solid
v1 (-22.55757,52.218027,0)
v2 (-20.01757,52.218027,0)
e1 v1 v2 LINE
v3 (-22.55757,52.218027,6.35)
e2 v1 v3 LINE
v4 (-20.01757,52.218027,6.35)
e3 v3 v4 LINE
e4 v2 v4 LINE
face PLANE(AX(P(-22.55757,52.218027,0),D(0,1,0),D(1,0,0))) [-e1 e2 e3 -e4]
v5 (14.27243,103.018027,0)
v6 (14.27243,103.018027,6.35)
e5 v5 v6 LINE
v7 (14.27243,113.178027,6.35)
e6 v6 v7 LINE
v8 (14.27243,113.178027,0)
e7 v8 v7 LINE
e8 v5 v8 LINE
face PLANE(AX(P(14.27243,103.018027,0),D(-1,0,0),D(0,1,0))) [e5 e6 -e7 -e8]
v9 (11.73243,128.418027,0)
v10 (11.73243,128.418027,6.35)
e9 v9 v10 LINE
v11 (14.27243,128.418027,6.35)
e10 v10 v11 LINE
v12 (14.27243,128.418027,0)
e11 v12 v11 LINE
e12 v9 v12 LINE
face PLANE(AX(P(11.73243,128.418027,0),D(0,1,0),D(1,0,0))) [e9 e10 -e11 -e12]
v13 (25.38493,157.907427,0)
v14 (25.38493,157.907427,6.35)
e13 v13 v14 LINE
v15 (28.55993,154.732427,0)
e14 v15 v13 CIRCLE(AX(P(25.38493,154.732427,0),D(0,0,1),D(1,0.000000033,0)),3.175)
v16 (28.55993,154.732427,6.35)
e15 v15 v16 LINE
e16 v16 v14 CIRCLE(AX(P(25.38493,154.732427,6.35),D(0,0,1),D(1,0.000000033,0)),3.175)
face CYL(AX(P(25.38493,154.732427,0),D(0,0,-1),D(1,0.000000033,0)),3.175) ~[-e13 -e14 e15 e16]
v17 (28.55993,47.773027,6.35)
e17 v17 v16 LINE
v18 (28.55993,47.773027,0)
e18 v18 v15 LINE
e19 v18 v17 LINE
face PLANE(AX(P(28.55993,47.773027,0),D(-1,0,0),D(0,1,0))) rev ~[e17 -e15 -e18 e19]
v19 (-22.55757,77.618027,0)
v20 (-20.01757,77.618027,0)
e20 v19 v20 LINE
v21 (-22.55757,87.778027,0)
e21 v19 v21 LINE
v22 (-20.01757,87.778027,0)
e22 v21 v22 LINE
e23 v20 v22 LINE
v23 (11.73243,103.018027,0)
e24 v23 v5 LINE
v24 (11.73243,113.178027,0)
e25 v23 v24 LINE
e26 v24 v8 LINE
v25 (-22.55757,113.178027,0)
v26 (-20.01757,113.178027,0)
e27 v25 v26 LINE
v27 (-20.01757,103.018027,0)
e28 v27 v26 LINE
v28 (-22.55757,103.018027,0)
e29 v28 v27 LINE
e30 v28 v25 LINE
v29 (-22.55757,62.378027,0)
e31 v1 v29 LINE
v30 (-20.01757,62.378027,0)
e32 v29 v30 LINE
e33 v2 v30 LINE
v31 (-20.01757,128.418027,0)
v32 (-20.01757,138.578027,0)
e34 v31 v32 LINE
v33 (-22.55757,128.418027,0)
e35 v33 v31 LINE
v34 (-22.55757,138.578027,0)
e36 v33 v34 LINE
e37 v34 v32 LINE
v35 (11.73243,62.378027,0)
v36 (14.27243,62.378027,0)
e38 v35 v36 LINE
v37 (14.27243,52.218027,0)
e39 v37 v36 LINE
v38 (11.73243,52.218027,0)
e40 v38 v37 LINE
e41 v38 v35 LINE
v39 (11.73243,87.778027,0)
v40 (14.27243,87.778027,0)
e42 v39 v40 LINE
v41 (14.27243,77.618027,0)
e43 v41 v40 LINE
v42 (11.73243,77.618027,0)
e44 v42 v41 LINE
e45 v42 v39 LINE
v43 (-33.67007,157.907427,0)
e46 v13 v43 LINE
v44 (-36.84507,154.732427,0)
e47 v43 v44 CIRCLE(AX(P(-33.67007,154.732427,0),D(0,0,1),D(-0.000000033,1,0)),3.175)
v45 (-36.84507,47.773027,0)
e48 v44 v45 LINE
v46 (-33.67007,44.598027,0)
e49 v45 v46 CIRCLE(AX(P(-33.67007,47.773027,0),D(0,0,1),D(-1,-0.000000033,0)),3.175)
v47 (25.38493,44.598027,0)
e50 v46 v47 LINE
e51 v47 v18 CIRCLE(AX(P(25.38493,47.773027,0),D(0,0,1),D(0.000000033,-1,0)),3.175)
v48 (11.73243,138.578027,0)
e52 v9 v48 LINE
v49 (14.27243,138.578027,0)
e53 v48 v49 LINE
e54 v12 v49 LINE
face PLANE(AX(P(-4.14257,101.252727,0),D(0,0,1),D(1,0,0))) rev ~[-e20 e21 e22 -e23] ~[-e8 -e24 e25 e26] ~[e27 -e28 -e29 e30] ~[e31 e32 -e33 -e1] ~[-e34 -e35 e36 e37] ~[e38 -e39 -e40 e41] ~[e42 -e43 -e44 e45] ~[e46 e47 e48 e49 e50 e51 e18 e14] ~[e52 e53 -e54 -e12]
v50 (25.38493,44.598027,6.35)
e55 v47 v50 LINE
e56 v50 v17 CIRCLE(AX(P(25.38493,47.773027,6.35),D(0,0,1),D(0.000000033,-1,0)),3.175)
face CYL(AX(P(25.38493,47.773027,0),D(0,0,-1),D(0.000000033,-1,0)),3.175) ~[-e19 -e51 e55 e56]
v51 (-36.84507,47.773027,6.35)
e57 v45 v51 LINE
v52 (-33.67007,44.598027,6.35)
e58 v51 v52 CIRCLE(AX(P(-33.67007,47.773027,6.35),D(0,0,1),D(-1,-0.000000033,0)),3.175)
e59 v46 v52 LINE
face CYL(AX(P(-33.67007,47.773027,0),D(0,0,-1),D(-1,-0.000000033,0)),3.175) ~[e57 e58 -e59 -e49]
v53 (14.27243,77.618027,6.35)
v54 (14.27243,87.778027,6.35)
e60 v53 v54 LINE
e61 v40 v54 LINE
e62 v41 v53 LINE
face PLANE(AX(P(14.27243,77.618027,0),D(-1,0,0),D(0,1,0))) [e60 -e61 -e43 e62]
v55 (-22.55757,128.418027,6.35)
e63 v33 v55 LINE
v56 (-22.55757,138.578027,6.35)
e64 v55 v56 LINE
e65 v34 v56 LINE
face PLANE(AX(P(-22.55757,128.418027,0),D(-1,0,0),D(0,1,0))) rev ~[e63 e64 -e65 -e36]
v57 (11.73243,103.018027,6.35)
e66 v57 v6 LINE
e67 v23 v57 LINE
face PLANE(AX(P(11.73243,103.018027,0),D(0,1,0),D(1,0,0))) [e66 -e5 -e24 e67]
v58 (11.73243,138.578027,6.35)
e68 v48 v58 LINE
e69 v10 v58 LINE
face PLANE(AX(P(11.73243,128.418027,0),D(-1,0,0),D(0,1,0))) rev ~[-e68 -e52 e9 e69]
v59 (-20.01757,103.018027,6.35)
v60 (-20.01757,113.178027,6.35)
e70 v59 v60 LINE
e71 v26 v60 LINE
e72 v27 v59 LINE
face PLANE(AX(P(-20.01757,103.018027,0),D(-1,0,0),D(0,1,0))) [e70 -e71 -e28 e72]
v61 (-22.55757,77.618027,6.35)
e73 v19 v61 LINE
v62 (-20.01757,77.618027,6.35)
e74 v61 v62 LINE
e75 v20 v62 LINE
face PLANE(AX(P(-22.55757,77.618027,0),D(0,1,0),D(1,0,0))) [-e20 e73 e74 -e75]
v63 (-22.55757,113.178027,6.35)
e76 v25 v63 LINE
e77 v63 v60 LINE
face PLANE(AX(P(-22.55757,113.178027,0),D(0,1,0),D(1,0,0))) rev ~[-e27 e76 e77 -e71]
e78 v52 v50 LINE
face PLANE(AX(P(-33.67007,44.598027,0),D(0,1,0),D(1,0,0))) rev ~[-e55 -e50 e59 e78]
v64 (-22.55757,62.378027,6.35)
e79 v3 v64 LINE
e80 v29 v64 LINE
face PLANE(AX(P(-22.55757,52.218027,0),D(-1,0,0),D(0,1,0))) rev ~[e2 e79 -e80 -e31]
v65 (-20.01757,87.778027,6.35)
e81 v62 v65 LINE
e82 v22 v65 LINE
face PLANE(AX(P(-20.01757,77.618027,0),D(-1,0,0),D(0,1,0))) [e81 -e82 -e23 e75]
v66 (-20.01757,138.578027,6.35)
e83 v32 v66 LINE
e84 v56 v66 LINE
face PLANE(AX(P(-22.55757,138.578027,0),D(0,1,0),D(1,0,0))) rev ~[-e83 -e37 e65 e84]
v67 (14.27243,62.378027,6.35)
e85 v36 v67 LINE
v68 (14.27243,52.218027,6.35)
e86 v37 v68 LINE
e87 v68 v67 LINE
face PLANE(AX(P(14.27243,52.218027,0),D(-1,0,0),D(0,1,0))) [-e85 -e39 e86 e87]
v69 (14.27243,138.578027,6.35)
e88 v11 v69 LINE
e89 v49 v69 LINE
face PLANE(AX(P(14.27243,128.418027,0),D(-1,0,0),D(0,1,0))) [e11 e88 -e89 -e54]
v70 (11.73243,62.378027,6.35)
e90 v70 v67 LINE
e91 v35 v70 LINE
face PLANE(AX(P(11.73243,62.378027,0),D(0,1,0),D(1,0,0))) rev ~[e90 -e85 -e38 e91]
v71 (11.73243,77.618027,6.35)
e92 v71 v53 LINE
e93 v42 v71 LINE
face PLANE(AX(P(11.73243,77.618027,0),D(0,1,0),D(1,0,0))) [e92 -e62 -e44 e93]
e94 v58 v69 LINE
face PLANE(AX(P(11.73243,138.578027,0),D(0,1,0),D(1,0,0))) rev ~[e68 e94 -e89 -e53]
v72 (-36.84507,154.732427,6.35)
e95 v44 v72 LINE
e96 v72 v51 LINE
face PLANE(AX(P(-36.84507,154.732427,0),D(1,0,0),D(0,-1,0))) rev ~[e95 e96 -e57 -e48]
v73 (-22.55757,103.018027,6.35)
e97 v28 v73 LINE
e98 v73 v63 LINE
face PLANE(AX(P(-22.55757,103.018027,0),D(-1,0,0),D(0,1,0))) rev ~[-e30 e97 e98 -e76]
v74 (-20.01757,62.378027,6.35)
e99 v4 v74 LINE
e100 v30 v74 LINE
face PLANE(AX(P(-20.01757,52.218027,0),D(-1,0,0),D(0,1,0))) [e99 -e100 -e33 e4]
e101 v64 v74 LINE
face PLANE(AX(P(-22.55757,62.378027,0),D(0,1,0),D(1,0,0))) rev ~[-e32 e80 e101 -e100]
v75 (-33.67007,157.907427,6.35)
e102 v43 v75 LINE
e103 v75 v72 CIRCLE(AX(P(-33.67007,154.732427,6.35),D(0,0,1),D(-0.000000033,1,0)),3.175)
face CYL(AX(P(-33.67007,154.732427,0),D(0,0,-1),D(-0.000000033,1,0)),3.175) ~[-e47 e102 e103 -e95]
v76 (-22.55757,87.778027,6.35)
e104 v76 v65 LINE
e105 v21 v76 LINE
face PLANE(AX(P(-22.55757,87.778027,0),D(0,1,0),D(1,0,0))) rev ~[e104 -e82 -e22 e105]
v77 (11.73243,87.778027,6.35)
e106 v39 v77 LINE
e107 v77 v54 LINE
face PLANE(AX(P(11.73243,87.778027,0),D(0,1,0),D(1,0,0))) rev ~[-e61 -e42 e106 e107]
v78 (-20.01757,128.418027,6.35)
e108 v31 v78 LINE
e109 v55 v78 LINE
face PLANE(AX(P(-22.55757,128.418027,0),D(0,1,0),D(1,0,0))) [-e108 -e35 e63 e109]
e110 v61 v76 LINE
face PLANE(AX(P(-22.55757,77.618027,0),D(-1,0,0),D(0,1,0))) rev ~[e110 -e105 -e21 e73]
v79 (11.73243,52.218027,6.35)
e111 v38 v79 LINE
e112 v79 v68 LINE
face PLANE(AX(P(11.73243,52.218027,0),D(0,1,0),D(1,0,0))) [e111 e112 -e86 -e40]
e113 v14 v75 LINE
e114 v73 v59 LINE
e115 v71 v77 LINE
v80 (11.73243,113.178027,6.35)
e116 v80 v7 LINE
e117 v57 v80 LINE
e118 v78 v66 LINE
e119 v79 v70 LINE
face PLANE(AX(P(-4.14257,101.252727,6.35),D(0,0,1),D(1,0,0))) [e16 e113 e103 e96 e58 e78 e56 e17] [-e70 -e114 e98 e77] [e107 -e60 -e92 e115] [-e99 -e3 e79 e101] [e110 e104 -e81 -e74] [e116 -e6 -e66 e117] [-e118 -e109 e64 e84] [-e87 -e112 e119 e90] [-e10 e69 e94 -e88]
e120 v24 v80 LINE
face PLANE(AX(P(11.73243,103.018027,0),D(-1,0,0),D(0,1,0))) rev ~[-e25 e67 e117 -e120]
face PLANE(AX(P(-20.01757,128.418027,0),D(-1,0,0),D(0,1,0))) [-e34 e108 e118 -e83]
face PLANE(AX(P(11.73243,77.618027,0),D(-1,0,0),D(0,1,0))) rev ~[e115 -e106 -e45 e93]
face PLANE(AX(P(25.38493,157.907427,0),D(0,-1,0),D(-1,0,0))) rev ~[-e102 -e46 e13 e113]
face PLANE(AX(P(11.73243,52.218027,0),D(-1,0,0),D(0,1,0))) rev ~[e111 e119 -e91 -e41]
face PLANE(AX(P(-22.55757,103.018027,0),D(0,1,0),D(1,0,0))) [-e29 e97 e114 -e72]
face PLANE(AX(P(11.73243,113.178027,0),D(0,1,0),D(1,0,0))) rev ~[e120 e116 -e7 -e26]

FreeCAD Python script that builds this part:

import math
import FreeCAD as App
import Part
import Sketcher
Q = App.Units.Quantity

doc = App.newDocument("Part")
body = doc.addObject("PartDesign::Body", "Body")

# Sketch on XY plane
sketch1 = body.newObject("Sketcher::SketchObject", "Sketch")
sketch1.AttachmentSupport = (doc.getObject("XY_Plane"), [""])
sketch1.MapMode = "FlatFace"
sketch1.addGeometry([
    Part.ArcOfCircle(Part.Circle(App.Vector(-33.7, 47.8, 0), App.Vector(0, 0, 1), 3.2), math.radians(-180), math.radians(-90)),  # 0
    Part.LineSegment(App.Vector(-33.7, 44.6, 0), App.Vector(25.4, 44.6, 0)),  # 1
    Part.ArcOfCircle(Part.Circle(App.Vector(25.4, 47.8, 0), App.Vector(0, 0, 1), 3.2), math.radians(-90), math.radians(0)),  # 2
    Part.LineSegment(App.Vector(28.6, 47.8, 0), App.Vector(28.6, 154.7, 0)),  # 3
    Part.ArcOfCircle(Part.Circle(App.Vector(25.4, 154.7, 0), App.Vector(0, 0, 1), 3.2), math.radians(0), math.radians(90)),  # 4
    Part.LineSegment(App.Vector(25.4, 157.9, 0), App.Vector(-33.7, 157.9, 0)),  # 5
    Part.ArcOfCircle(Part.Circle(App.Vector(-33.7, 154.7, 0), App.Vector(0, 0, 1), 3.2), math.radians(90), math.radians(180)),  # 6
    Part.LineSegment(App.Vector(-36.8, 154.7, 0), App.Vector(-36.8, 47.8, 0)),  # 7
    Part.LineSegment(App.Vector(-20, 52.2, 0), App.Vector(-22.6, 52.2, 0)),  # 8
    Part.LineSegment(App.Vector(-22.6, 52.2, 0), App.Vector(-22.6, 62.4, 0)),  # 9
    Part.LineSegment(App.Vector(-22.6, 62.4, 0), App.Vector(-20, 62.4, 0)),  # 10
    Part.LineSegment(App.Vector(-20, 62.4, 0), App.Vector(-20, 52.2, 0)),  # 11
    Part.LineSegment(App.Vector(-20, 77.6, 0), App.Vector(-22.6, 77.6, 0)),  # 12
    Part.LineSegment(App.Vector(-22.6, 77.6, 0), App.Vector(-22.6, 87.8, 0)),  # 13
    Part.LineSegment(App.Vector(-22.6, 87.8, 0), App.Vector(-20, 87.8, 0)),  # 14
    Part.LineSegment(App.Vector(-20, 87.8, 0), App.Vector(-20, 77.6, 0)),  # 15
    Part.LineSegment(App.Vector(14.3, 52.2, 0), App.Vector(11.7, 52.2, 0)),  # 16
    Part.LineSegment(App.Vector(11.7, 52.2, 0), App.Vector(11.7, 62.4, 0)),  # 17
    Part.LineSegment(App.Vector(11.7, 62.4, 0), App.Vector(14.3, 62.4, 0)),  # 18
    Part.LineSegment(App.Vector(14.3, 62.4, 0), App.Vector(14.3, 52.2, 0)),  # 19
    Part.LineSegment(App.Vector(14.3, 77.6, 0), App.Vector(11.7, 77.6, 0)),  # 20
    Part.LineSegment(App.Vector(11.7, 77.6, 0), App.Vector(11.7, 87.8, 0)),  # 21
    Part.LineSegment(App.Vector(11.7, 87.8, 0), App.Vector(14.3, 87.8, 0)),  # 22
    Part.LineSegment(App.Vector(14.3, 87.8, 0), App.Vector(14.3, 77.6, 0)),  # 23
    Part.LineSegment(App.Vector(-20, 103, 0), App.Vector(-22.6, 103, 0)),  # 24
    Part.LineSegment(App.Vector(-22.6, 103, 0), App.Vector(-22.6, 113.2, 0)),  # 25
    Part.LineSegment(App.Vector(-22.6, 113.2, 0), App.Vector(-20, 113.2, 0)),  # 26
    Part.LineSegment(App.Vector(-20, 113.2, 0), App.Vector(-20, 103, 0)),  # 27
    Part.LineSegment(App.Vector(-20, 128.4, 0), App.Vector(-22.6, 128.4, 0)),  # 28
    Part.LineSegment(App.Vector(-22.6, 128.4, 0), App.Vector(-22.6, 138.6, 0)),  # 29
    Part.LineSegment(App.Vector(-22.6, 138.6, 0), App.Vector(-20, 138.6, 0)),  # 30
    Part.LineSegment(App.Vector(-20, 138.6, 0), App.Vector(-20, 128.4, 0)),  # 31
    Part.LineSegment(App.Vector(14.3, 103, 0), App.Vector(11.7, 103, 0)),  # 32
    Part.LineSegment(App.Vector(11.7, 103, 0), App.Vector(11.7, 113.2, 0)),  # 33
    Part.LineSegment(App.Vector(11.7, 113.2, 0), App.Vector(14.3, 113.2, 0)),  # 34
    Part.LineSegment(App.Vector(14.3, 113.2, 0), App.Vector(14.3, 103, 0)),  # 35
    Part.LineSegment(App.Vector(14.3, 128.4, 0), App.Vector(11.7, 128.4, 0)),  # 36
    Part.LineSegment(App.Vector(11.7, 128.4, 0), App.Vector(11.7, 138.6, 0)),  # 37
    Part.LineSegment(App.Vector(11.7, 138.6, 0), App.Vector(14.3, 138.6, 0)),  # 38
    Part.LineSegment(App.Vector(14.3, 138.6, 0), App.Vector(14.3, 128.4, 0)),  # 39
], False)
sketch1.addConstraint([
    Sketcher.Constraint("Tangent", 0, 2, 1, 1),
    Sketcher.Constraint("Tangent", 1, 2, 2, 1),
    Sketcher.Constraint("Tangent", 2, 2, 3, 1),
    Sketcher.Constraint("Tangent", 3, 2, 4, 1),
    Sketcher.Constraint("Tangent", 4, 2, 5, 1),
    Sketcher.Constraint("Tangent", 5, 2, 6, 1),
    Sketcher.Constraint("Tangent", 6, 2, 7, 1),
    Sketcher.Constraint("Tangent", 7, 2, 0, 1),
    Sketcher.Constraint("Coincident", 8, 2, 9, 1),
    Sketcher.Constraint("Coincident", 9, 2, 10, 1),
    Sketcher.Constraint("Coincident", 10, 2, 11, 1),
    Sketcher.Constraint("Coincident", 11, 2, 8, 1),
    Sketcher.Constraint("Coincident", 12, 2, 13, 1),
    Sketcher.Constraint("Coincident", 13, 2, 14, 1),
    Sketcher.Constraint("Coincident", 14, 2, 15, 1),
    Sketcher.Constraint("Coincident", 15, 2, 12, 1),
    Sketcher.Constraint("Coincident", 16, 2, 17, 1),
    Sketcher.Constraint("Coincident", 17, 2, 18, 1),
    Sketcher.Constraint("Coincident", 18, 2, 19, 1),
    Sketcher.Constraint("Coincident", 19, 2, 16, 1),
    Sketcher.Constraint("Coincident", 20, 2, 21, 1),
    Sketcher.Constraint("Coincident", 21, 2, 22, 1),
    Sketcher.Constraint("Coincident", 22, 2, 23, 1),
    Sketcher.Constraint("Coincident", 23, 2, 20, 1),
    Sketcher.Constraint("Coincident", 24, 2, 25, 1),
    Sketcher.Constraint("Coincident", 25, 2, 26, 1),
    Sketcher.Constraint("Coincident", 26, 2, 27, 1),
    Sketcher.Constraint("Coincident", 27, 2, 24, 1),
    Sketcher.Constraint("Coincident", 28, 2, 29, 1),
    Sketcher.Constraint("Coincident", 29, 2, 30, 1),
    Sketcher.Constraint("Coincident", 30, 2, 31, 1),
    Sketcher.Constraint("Coincident", 31, 2, 28, 1),
    Sketcher.Constraint("Coincident", 32, 2, 33, 1),
    Sketcher.Constraint("Coincident", 33, 2, 34, 1),
    Sketcher.Constraint("Coincident", 34, 2, 35, 1),
    Sketcher.Constraint("Coincident", 35, 2, 32, 1),
    Sketcher.Constraint("Coincident", 36, 2, 37, 1),
    Sketcher.Constraint("Coincident", 37, 2, 38, 1),
    Sketcher.Constraint("Coincident", 38, 2, 39, 1),
    Sketcher.Constraint("Coincident", 39, 2, 36, 1),
    Sketcher.Constraint("Horizontal", 1),
    Sketcher.Constraint("Vertical", 3),
    Sketcher.Constraint("Horizontal", 5),
    Sketcher.Constraint("Vertical", 7),
    Sketcher.Constraint("Horizontal", 8),
    Sketcher.Constraint("Vertical", 9),
    Sketcher.Constraint("Horizontal", 10),
    Sketcher.Constraint("Vertical", 11),
    Sketcher.Constraint("Horizontal", 12),
    Sketcher.Constraint("Vertical", 13),
    Sketcher.Constraint("Horizontal", 14),
    Sketcher.Constraint("Vertical", 15),
    Sketcher.Constraint("Horizontal", 16),
    Sketcher.Constraint("Vertical", 17),
    Sketcher.Constraint("Horizontal", 18),
    Sketcher.Constraint("Vertical", 19),
    Sketcher.Constraint("Horizontal", 20),
    Sketcher.Constraint("Vertical", 21),
    Sketcher.Constraint("Horizontal", 22),
    Sketcher.Constraint("Vertical", 23),
    Sketcher.Constraint("Horizontal", 24),
    Sketcher.Constraint("Vertical", 25),
    Sketcher.Constraint("Horizontal", 26),
    Sketcher.Constraint("Vertical", 27),
    Sketcher.Constraint("Horizontal", 28),
    Sketcher.Constraint("Vertical", 29),
    Sketcher.Constraint("Horizontal", 30),
    Sketcher.Constraint("Vertical", 31),
    Sketcher.Constraint("Horizontal", 32),
    Sketcher.Constraint("Vertical", 33),
    Sketcher.Constraint("Horizontal", 34),
    Sketcher.Constraint("Vertical", 35),
    Sketcher.Constraint("Horizontal", 36),
    Sketcher.Constraint("Vertical", 37),
    Sketcher.Constraint("Horizontal", 38),
    Sketcher.Constraint("Vertical", 39),
    Sketcher.Constraint("Equal", 0, 2),
    Sketcher.Constraint("Equal", 2, 4),
    Sketcher.Constraint("Equal", 4, 6),
    Sketcher.Constraint("Horizontal", 11, 2, 16, 2),
    Sketcher.Constraint("Horizontal", 10, 2, 17, 2),
    Sketcher.Constraint("Horizontal", 15, 2, 20, 2),
    Sketcher.Constraint("Horizontal", 14, 2, 21, 2),
    Sketcher.Constraint("Horizontal", 27, 2, 32, 2),
    Sketcher.Constraint("Horizontal", 26, 2, 33, 2),
    Sketcher.Constraint("Horizontal", 31, 2, 36, 2),
    Sketcher.Constraint("Horizontal", 30, 2, 37, 2),
    Sketcher.Constraint("Vertical", 9, 2, 12, 2),
    Sketcher.Constraint("Vertical", 11, 2, 14, 2),
    Sketcher.Constraint("Vertical", 17, 2, 20, 2),
    Sketcher.Constraint("Vertical", 19, 2, 22, 2),
    Sketcher.Constraint("Vertical", 13, 2, 24, 2),
    Sketcher.Constraint("Vertical", 15, 2, 26, 2),
    Sketcher.Constraint("Vertical", 25, 2, 28, 2),
    Sketcher.Constraint("Vertical", 27, 2, 30, 2),
    Sketcher.Constraint("Vertical", 21, 2, 32, 2),
    Sketcher.Constraint("Vertical", 23, 2, 34, 2),
    Sketcher.Constraint("Vertical", 33, 2, 36, 2),
    Sketcher.Constraint("Vertical", 35, 2, 38, 2),
    Sketcher.Constraint("Equal", 14, 16),
    Sketcher.Constraint("Equal", 11, 13),
    Sketcher.Constraint("Equal", 23, 25),
    Sketcher.Constraint("Equal", 27, 29),
    Sketcher.Constraint("DistanceX", 8, 2, 8, 1, Q("0.1 in")),
    Sketcher.Constraint("DistanceY", 9, 1, 9, 2, Q("0.4 in")),
    Sketcher.Constraint("Radius", 0, Q("0.125 in")),
    Sketcher.Constraint("DistanceY", 8, 2, 12, 2, Q("1 in")),
    Sketcher.Constraint("DistanceY", 12, 2, 24, 2, Q("1 in")),
    Sketcher.Constraint("DistanceY", 24, 2, 28, 2, Q("1 in")),
    Sketcher.Constraint("DistanceY", 0, 2, 8, 2, Q("0.3 in")),
    Sketcher.Constraint("DistanceX", 1, 1, 1, 2, Q("2.325 in")),
    Sketcher.Constraint("DistanceY", 3, 1, 3, 2, Q("4.211 in")),
    Sketcher.Constraint("DistanceX", 11, 2, 16, 2, Q("1.25 in")),
    Sketcher.Constraint("DistanceX", 0, 3, 8, 2, Q("0.4375 in")),
    Sketcher.Constraint("DistanceX", 0, 3, -1, 1, 33.67007),
    Sketcher.Constraint("DistanceY", -1, 1, 0, 3, 47.773027),
])
pad1 = body.newObject("PartDesign::Pad", "Pad")
pad1.Profile = sketch1
pad1.Length = Q("0.25 in")

doc.recompute()
